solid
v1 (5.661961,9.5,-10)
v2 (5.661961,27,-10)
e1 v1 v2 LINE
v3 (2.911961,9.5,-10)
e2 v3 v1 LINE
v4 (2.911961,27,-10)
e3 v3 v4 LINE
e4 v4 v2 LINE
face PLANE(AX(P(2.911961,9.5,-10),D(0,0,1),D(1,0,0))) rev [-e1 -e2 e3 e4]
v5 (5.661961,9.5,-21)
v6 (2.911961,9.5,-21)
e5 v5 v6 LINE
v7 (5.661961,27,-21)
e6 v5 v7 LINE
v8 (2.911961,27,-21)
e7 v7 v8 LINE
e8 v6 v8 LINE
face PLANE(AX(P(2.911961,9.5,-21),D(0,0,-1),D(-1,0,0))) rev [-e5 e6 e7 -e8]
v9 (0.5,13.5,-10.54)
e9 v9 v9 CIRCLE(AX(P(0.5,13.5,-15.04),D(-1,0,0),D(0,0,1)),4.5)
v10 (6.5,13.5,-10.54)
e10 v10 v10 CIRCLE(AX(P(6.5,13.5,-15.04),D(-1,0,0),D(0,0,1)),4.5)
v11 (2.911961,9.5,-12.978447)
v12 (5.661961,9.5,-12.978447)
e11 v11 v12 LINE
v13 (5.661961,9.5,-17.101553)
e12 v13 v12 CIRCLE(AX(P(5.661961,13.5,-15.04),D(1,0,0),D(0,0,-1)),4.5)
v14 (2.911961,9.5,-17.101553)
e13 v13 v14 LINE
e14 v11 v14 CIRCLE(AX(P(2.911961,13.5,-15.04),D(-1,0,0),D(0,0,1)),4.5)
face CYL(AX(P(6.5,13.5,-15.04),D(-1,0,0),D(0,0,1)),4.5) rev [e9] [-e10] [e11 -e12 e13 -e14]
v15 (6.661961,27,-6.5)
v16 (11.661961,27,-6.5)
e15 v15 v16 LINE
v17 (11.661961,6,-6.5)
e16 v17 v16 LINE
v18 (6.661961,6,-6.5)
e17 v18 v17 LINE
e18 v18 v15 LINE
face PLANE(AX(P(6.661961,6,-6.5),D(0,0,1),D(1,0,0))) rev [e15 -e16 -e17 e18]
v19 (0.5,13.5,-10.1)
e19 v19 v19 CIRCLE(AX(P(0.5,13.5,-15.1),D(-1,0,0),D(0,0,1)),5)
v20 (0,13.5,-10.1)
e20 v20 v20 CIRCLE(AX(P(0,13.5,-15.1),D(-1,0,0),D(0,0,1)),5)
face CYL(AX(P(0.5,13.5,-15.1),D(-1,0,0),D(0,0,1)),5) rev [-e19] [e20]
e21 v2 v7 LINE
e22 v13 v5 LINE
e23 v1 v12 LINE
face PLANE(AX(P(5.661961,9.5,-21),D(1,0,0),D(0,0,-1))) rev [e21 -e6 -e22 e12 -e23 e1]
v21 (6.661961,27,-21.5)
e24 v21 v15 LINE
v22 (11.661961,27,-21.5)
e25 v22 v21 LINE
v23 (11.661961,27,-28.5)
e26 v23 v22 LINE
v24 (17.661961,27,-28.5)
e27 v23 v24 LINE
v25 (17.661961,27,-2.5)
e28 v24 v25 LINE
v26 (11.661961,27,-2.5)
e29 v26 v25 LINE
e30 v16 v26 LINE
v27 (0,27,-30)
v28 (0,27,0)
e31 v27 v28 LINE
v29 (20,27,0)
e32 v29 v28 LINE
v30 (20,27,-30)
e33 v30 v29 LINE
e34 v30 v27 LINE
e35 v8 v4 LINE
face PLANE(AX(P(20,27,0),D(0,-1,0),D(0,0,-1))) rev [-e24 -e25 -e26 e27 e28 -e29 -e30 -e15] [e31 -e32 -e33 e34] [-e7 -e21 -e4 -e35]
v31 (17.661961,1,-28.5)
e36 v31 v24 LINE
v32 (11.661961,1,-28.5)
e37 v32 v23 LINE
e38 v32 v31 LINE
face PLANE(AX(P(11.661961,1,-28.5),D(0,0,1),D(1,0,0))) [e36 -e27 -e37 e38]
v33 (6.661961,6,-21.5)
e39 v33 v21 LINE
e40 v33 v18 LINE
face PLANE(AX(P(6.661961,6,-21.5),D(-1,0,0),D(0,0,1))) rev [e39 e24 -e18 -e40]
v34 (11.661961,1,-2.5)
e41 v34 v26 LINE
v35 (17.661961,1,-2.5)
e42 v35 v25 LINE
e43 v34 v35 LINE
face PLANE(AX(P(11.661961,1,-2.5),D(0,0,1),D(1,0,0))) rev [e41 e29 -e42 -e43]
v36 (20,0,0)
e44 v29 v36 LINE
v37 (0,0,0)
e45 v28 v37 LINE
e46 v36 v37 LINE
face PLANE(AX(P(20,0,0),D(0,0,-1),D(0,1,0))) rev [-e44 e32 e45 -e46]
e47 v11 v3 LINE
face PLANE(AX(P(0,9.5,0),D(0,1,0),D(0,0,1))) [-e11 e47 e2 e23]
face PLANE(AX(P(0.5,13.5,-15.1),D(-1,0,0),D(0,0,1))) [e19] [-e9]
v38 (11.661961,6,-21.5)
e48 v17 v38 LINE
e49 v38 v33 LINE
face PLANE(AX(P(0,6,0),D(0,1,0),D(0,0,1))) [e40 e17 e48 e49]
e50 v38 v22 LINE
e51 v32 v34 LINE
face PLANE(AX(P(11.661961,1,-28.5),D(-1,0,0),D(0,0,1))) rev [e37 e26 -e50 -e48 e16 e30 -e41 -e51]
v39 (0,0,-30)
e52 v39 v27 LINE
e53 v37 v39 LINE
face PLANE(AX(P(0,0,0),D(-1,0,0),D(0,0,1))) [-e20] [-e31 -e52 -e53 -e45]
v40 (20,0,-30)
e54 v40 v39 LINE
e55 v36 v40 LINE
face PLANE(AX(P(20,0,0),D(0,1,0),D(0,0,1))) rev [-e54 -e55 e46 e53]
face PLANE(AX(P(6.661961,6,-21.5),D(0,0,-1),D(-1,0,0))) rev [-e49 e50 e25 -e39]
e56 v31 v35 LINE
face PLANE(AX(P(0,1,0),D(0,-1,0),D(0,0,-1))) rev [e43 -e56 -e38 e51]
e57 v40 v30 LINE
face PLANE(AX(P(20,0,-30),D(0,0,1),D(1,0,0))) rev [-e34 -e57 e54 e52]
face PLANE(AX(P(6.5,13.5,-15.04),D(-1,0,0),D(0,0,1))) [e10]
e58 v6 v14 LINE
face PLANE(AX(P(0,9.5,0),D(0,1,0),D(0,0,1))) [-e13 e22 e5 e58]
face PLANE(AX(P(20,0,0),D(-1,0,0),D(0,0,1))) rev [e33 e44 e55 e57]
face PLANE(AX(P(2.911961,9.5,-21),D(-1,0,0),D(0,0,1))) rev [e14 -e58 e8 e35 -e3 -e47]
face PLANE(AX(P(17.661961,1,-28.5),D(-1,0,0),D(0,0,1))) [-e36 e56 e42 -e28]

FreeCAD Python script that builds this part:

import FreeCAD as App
import Part
import Sketcher
from FreeCAD import Vector
Q = App.Units.Quantity


def add_polygon(sketch, points):
    """Adds a closed chain of lines whose ends are joined by coincident constraints."""
    first, n = sketch.GeometryCount, len(points)
    for a, b in zip(points, points[1:] + points[:1]):
        sketch.addGeometry(Part.LineSegment(App.Vector(*a, 0), App.Vector(*b, 0)), False)
    for i in range(n):
        sketch.addConstraint(Sketcher.Constraint("Coincident", first + i, 2, first + (i + 1) % n, 1))

doc = App.newDocument("Part")
body = doc.addObject("PartDesign::Body", "Body")

sketch1 = body.newObject("Sketcher::SketchObject", "Sketch")
sketch1.AttachmentSupport = (doc.getObject("YZ_Plane"), [""])
sketch1.MapMode = "FlatFace"
add_polygon(sketch1, [(27, 0), (0, 0), (0, -30), (27, -30)])
sketch1.addConstraint([
    Sketcher.Constraint("Horizontal", 0),
    Sketcher.Constraint("Vertical", 1),
    Sketcher.Constraint("Horizontal", 2),
    Sketcher.Constraint("Vertical", 3),
    Sketcher.Constraint("Coincident", 0, 2, -1, 1),
    Sketcher.Constraint("DistanceX", 0, 2, 0, 1, Q("27 mm")),
    Sketcher.Constraint("DistanceY", 1, 2, 1, 1, Q("30 mm")),
])
pad1 = body.newObject("PartDesign::Pad", "Pad")
pad1.Profile = sketch1
pad1.Length = 20

sketch2 = body.newObject("Sketcher::SketchObject", "Sketch001")
sketch2.AttachmentSupport = (doc.getObject("XZ_Plane"), [""])
sketch2.MapMode = "FlatFace"
sketch2.AttachmentOffset = App.Placement(Vector(0, 0, -27), App.Rotation())
add_polygon(sketch2, [(11.661961, -28.5), (11.661961, -2.5), (17.661961, -2.5), (17.661961, -28.5)])
sketch2.addConstraint([
    Sketcher.Constraint("Vertical", 0),
    Sketcher.Constraint("Horizontal", 1),
    Sketcher.Constraint("Vertical", 2),
    Sketcher.Constraint("Horizontal", 3),
    Sketcher.Constraint("DistanceX", 1, 1, 1, 2, Q("6 mm")),
    Sketcher.Constraint("DistanceY", 0, 1, 0, 2, Q("26 mm")),
    Sketcher.Constraint("DistanceY", 0, 2, -1, 1, Q("2.5 mm")),
    Sketcher.Constraint("DistanceX", -1, 1, 0, 2, Q("11.661961 mm")),
])
pocket1 = body.newObject("PartDesign::Pocket", "Pocket")
pocket1.Profile = sketch2
pocket1.Length = 26
pocket1.Reversed = True

sketch3 = body.newObject("Sketcher::SketchObject", "Sketch002")
sketch3.AttachmentSupport = (doc.getObject("XZ_Plane"), [""])
sketch3.MapMode = "FlatFace"
sketch3.AttachmentOffset = App.Placement(Vector(0, 0, -27), App.Rotation())
add_polygon(sketch3, [(6.661961, -21.5), (6.661961, -6.5), (11.661961, -6.5), (11.661961, -21.5)])
sketch3.addConstraint([
    Sketcher.Constraint("Vertical", 0),
    Sketcher.Constraint("Horizontal", 1),
    Sketcher.Constraint("Vertical", 2),
    Sketcher.Constraint("Horizontal", 3),
    Sketcher.Constraint("DistanceX", 1, 1, 1, 2, Q("5 mm")),
    Sketcher.Constraint("DistanceY", 0, 1, 0, 2, Q("15 mm")),
    Sketcher.Constraint("DistanceY", 0, 2, -1, 1, Q("6.5 mm")),
    Sketcher.Constraint("DistanceX", -1, 1, 0, 2, Q("6.661961 mm")),
])
pocket2 = body.newObject("PartDesign::Pocket", "Pocket001")
pocket2.Profile = sketch3
pocket2.Length = 21
pocket2.Reversed = True

sketch4 = body.newObject("Sketcher::SketchObject", "Sketch003")
sketch4.AttachmentSupport = (doc.getObject("YZ_Plane"), [""])
sketch4.MapMode = "FlatFace"
sketch4.addGeometry(Part.Circle(Vector(13.5, -15.1, 0), Vector(0, 0, 1), 5), False)
sketch4.addConstraint([
    Sketcher.Constraint("Diameter", 0, Q("10 mm")),
    Sketcher.Constraint("DistanceX", -1, 1, 0, 3, Q("13.5 mm")),
    Sketcher.Constraint("DistanceY", 0, 3, -1, 1, Q("15.1 mm")),
])
pocket3 = body.newObject("PartDesign::Pocket", "Pocket002")
pocket3.Profile = sketch4
pocket3.Length = 0.5
pocket3.Reversed = True

sketch5 = body.newObject("Sketcher::SketchObject", "Sketch004")
sketch5.AttachmentSupport = (doc.getObject("XZ_Plane"), [""])
sketch5.MapMode = "FlatFace"
sketch5.AttachmentOffset = App.Placement(Vector(0, 0, -27), App.Rotation())
add_polygon(sketch5, [(2.911961, -21), (2.911961, -10), (5.661961, -10), (5.661961, -21)])
sketch5.addConstraint([
    Sketcher.Constraint("Vertical", 0),
    Sketcher.Constraint("Horizontal", 1),
    Sketcher.Constraint("Vertical", 2),
    Sketcher.Constraint("Horizontal", 3),
    Sketcher.Constraint("DistanceY", 0, 1, 0, 2, Q("11 mm")),
    Sketcher.Constraint("DistanceY", 0, 2, -1, 1, Q("10 mm")),
    Sketcher.Constraint("DistanceX", 1, 1, 1, 2, Q("2.75 mm")),
    Sketcher.Constraint("DistanceX", -1, 1, 0, 2, Q("2.911961 mm")),
])
pocket4 = body.newObject("PartDesign::Pocket", "Pocket003")
pocket4.Profile = sketch5
pocket4.Length = 17.5
pocket4.Reversed = True

sketch6 = body.newObject("Sketcher::SketchObject", "Sketch005")
sketch6.AttachmentSupport = (doc.getObject("YZ_Plane"), [""])
sketch6.MapMode = "FlatFace"
sketch6.AttachmentOffset = App.Placement(Vector(0, 0, 0.5), App.Rotation())
sketch6.addGeometry(Part.Circle(Vector(13.5, -15.04, 0), Vector(0, 0, 1), 4.5), False)
sketch6.addConstraint([
    Sketcher.Constraint("Diameter", 0, Q("9 mm")),
    Sketcher.Constraint("DistanceX", -1, 1, 0, 3, Q("13.5 mm")),
    Sketcher.Constraint("DistanceY", 0, 3, -1, 1, Q("15.04 mm")),
])
pocket5 = body.newObject("PartDesign::Pocket", "Pocket004")
pocket5.Profile = sketch6
pocket5.Length = 6
pocket5.Reversed = True

doc.recompute()
